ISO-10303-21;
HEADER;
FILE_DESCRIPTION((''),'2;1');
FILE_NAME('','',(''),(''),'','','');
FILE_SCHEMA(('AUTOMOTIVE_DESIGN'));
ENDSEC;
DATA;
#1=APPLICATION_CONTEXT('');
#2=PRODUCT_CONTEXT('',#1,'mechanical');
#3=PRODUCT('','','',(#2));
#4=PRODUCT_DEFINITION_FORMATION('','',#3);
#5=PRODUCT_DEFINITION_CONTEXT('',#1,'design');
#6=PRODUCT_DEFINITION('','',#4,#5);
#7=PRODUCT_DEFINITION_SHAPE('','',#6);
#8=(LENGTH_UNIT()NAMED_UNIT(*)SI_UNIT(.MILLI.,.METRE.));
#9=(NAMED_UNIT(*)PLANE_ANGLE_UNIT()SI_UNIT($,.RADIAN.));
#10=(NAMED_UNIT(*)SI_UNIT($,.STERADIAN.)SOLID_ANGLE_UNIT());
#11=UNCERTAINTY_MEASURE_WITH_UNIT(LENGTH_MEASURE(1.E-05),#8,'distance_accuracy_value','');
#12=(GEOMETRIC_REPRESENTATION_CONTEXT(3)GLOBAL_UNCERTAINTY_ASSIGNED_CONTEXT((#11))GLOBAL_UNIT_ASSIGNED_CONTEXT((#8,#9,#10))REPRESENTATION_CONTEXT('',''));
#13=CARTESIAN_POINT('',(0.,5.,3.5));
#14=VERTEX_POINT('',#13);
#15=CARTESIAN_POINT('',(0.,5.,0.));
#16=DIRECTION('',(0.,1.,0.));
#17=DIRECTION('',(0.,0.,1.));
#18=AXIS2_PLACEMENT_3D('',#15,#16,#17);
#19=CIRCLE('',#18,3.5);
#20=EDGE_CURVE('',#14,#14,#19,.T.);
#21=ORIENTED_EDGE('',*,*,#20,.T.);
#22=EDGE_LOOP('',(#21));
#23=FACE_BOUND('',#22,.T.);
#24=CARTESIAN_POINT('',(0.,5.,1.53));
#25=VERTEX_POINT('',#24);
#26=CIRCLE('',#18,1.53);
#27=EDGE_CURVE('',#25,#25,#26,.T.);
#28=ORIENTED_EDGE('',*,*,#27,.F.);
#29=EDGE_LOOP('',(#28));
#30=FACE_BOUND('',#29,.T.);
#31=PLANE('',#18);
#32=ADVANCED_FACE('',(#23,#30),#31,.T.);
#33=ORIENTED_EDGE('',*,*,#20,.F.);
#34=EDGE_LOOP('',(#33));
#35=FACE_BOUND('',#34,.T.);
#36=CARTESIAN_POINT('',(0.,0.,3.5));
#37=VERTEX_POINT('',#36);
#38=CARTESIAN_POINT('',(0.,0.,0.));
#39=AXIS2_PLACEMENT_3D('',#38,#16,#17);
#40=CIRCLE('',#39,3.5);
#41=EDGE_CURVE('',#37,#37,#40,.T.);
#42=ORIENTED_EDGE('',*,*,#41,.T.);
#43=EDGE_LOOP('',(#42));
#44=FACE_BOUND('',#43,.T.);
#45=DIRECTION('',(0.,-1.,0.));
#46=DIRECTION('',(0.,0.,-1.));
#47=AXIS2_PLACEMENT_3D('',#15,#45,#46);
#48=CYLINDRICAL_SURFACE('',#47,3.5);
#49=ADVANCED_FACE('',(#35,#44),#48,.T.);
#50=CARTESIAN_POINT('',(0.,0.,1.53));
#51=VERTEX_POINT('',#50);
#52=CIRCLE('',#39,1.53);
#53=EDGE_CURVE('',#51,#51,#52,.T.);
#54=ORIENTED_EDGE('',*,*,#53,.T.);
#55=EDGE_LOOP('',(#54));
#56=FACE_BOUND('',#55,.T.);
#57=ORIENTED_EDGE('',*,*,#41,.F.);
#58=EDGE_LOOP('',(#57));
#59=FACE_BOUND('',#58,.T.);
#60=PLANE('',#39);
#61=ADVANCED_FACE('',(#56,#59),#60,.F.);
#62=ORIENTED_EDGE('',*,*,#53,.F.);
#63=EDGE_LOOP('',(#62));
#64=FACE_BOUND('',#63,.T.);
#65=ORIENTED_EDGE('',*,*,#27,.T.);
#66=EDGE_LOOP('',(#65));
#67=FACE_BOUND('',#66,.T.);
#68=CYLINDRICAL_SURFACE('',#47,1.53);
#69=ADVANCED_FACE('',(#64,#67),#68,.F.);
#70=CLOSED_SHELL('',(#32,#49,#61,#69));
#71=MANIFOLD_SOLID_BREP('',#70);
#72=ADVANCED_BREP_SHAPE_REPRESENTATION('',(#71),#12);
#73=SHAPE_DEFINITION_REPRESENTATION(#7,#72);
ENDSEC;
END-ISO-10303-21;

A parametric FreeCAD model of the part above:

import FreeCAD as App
import Part
import Sketcher
from FreeCAD import Vector
Q = App.Units.Quantity

doc = App.newDocument("Part")
body = doc.addObject("PartDesign::Body", "Body")

sketch1 = doc.addObject("Sketcher::SketchObject", "Sketch")
body.addObject(sketch1)
sketch1.AttachmentSupport = (doc.XZ_Plane, [""])
sketch1.MapMode = "FlatFace"
sketch1.addGeometry(Part.Circle(Vector(0, 0, 0), Vector(0, 0, 1), 3.5), False)
sketch1.addGeometry(Part.Circle(Vector(0, 0, 0), Vector(0, 0, 1), 1.5), False)
sketch1.addConstraint(Sketcher.Constraint("Coincident", 0, 3, -1, 1))
sketch1.addConstraint(Sketcher.Constraint("Coincident", 1, 3, -1, 1))
sketch1.addConstraint(Sketcher.Constraint("Diameter", 0, Q("7 mm")))
sketch1.addConstraint(Sketcher.Constraint("Diameter", 1, Q("3.06 mm")))
pad1 = doc.addObject("PartDesign::Pad", "Pad")
body.addObject(pad1)
pad1.Profile = sketch1
pad1.Length = 5
pad1.Reversed = True

doc.recompute()
